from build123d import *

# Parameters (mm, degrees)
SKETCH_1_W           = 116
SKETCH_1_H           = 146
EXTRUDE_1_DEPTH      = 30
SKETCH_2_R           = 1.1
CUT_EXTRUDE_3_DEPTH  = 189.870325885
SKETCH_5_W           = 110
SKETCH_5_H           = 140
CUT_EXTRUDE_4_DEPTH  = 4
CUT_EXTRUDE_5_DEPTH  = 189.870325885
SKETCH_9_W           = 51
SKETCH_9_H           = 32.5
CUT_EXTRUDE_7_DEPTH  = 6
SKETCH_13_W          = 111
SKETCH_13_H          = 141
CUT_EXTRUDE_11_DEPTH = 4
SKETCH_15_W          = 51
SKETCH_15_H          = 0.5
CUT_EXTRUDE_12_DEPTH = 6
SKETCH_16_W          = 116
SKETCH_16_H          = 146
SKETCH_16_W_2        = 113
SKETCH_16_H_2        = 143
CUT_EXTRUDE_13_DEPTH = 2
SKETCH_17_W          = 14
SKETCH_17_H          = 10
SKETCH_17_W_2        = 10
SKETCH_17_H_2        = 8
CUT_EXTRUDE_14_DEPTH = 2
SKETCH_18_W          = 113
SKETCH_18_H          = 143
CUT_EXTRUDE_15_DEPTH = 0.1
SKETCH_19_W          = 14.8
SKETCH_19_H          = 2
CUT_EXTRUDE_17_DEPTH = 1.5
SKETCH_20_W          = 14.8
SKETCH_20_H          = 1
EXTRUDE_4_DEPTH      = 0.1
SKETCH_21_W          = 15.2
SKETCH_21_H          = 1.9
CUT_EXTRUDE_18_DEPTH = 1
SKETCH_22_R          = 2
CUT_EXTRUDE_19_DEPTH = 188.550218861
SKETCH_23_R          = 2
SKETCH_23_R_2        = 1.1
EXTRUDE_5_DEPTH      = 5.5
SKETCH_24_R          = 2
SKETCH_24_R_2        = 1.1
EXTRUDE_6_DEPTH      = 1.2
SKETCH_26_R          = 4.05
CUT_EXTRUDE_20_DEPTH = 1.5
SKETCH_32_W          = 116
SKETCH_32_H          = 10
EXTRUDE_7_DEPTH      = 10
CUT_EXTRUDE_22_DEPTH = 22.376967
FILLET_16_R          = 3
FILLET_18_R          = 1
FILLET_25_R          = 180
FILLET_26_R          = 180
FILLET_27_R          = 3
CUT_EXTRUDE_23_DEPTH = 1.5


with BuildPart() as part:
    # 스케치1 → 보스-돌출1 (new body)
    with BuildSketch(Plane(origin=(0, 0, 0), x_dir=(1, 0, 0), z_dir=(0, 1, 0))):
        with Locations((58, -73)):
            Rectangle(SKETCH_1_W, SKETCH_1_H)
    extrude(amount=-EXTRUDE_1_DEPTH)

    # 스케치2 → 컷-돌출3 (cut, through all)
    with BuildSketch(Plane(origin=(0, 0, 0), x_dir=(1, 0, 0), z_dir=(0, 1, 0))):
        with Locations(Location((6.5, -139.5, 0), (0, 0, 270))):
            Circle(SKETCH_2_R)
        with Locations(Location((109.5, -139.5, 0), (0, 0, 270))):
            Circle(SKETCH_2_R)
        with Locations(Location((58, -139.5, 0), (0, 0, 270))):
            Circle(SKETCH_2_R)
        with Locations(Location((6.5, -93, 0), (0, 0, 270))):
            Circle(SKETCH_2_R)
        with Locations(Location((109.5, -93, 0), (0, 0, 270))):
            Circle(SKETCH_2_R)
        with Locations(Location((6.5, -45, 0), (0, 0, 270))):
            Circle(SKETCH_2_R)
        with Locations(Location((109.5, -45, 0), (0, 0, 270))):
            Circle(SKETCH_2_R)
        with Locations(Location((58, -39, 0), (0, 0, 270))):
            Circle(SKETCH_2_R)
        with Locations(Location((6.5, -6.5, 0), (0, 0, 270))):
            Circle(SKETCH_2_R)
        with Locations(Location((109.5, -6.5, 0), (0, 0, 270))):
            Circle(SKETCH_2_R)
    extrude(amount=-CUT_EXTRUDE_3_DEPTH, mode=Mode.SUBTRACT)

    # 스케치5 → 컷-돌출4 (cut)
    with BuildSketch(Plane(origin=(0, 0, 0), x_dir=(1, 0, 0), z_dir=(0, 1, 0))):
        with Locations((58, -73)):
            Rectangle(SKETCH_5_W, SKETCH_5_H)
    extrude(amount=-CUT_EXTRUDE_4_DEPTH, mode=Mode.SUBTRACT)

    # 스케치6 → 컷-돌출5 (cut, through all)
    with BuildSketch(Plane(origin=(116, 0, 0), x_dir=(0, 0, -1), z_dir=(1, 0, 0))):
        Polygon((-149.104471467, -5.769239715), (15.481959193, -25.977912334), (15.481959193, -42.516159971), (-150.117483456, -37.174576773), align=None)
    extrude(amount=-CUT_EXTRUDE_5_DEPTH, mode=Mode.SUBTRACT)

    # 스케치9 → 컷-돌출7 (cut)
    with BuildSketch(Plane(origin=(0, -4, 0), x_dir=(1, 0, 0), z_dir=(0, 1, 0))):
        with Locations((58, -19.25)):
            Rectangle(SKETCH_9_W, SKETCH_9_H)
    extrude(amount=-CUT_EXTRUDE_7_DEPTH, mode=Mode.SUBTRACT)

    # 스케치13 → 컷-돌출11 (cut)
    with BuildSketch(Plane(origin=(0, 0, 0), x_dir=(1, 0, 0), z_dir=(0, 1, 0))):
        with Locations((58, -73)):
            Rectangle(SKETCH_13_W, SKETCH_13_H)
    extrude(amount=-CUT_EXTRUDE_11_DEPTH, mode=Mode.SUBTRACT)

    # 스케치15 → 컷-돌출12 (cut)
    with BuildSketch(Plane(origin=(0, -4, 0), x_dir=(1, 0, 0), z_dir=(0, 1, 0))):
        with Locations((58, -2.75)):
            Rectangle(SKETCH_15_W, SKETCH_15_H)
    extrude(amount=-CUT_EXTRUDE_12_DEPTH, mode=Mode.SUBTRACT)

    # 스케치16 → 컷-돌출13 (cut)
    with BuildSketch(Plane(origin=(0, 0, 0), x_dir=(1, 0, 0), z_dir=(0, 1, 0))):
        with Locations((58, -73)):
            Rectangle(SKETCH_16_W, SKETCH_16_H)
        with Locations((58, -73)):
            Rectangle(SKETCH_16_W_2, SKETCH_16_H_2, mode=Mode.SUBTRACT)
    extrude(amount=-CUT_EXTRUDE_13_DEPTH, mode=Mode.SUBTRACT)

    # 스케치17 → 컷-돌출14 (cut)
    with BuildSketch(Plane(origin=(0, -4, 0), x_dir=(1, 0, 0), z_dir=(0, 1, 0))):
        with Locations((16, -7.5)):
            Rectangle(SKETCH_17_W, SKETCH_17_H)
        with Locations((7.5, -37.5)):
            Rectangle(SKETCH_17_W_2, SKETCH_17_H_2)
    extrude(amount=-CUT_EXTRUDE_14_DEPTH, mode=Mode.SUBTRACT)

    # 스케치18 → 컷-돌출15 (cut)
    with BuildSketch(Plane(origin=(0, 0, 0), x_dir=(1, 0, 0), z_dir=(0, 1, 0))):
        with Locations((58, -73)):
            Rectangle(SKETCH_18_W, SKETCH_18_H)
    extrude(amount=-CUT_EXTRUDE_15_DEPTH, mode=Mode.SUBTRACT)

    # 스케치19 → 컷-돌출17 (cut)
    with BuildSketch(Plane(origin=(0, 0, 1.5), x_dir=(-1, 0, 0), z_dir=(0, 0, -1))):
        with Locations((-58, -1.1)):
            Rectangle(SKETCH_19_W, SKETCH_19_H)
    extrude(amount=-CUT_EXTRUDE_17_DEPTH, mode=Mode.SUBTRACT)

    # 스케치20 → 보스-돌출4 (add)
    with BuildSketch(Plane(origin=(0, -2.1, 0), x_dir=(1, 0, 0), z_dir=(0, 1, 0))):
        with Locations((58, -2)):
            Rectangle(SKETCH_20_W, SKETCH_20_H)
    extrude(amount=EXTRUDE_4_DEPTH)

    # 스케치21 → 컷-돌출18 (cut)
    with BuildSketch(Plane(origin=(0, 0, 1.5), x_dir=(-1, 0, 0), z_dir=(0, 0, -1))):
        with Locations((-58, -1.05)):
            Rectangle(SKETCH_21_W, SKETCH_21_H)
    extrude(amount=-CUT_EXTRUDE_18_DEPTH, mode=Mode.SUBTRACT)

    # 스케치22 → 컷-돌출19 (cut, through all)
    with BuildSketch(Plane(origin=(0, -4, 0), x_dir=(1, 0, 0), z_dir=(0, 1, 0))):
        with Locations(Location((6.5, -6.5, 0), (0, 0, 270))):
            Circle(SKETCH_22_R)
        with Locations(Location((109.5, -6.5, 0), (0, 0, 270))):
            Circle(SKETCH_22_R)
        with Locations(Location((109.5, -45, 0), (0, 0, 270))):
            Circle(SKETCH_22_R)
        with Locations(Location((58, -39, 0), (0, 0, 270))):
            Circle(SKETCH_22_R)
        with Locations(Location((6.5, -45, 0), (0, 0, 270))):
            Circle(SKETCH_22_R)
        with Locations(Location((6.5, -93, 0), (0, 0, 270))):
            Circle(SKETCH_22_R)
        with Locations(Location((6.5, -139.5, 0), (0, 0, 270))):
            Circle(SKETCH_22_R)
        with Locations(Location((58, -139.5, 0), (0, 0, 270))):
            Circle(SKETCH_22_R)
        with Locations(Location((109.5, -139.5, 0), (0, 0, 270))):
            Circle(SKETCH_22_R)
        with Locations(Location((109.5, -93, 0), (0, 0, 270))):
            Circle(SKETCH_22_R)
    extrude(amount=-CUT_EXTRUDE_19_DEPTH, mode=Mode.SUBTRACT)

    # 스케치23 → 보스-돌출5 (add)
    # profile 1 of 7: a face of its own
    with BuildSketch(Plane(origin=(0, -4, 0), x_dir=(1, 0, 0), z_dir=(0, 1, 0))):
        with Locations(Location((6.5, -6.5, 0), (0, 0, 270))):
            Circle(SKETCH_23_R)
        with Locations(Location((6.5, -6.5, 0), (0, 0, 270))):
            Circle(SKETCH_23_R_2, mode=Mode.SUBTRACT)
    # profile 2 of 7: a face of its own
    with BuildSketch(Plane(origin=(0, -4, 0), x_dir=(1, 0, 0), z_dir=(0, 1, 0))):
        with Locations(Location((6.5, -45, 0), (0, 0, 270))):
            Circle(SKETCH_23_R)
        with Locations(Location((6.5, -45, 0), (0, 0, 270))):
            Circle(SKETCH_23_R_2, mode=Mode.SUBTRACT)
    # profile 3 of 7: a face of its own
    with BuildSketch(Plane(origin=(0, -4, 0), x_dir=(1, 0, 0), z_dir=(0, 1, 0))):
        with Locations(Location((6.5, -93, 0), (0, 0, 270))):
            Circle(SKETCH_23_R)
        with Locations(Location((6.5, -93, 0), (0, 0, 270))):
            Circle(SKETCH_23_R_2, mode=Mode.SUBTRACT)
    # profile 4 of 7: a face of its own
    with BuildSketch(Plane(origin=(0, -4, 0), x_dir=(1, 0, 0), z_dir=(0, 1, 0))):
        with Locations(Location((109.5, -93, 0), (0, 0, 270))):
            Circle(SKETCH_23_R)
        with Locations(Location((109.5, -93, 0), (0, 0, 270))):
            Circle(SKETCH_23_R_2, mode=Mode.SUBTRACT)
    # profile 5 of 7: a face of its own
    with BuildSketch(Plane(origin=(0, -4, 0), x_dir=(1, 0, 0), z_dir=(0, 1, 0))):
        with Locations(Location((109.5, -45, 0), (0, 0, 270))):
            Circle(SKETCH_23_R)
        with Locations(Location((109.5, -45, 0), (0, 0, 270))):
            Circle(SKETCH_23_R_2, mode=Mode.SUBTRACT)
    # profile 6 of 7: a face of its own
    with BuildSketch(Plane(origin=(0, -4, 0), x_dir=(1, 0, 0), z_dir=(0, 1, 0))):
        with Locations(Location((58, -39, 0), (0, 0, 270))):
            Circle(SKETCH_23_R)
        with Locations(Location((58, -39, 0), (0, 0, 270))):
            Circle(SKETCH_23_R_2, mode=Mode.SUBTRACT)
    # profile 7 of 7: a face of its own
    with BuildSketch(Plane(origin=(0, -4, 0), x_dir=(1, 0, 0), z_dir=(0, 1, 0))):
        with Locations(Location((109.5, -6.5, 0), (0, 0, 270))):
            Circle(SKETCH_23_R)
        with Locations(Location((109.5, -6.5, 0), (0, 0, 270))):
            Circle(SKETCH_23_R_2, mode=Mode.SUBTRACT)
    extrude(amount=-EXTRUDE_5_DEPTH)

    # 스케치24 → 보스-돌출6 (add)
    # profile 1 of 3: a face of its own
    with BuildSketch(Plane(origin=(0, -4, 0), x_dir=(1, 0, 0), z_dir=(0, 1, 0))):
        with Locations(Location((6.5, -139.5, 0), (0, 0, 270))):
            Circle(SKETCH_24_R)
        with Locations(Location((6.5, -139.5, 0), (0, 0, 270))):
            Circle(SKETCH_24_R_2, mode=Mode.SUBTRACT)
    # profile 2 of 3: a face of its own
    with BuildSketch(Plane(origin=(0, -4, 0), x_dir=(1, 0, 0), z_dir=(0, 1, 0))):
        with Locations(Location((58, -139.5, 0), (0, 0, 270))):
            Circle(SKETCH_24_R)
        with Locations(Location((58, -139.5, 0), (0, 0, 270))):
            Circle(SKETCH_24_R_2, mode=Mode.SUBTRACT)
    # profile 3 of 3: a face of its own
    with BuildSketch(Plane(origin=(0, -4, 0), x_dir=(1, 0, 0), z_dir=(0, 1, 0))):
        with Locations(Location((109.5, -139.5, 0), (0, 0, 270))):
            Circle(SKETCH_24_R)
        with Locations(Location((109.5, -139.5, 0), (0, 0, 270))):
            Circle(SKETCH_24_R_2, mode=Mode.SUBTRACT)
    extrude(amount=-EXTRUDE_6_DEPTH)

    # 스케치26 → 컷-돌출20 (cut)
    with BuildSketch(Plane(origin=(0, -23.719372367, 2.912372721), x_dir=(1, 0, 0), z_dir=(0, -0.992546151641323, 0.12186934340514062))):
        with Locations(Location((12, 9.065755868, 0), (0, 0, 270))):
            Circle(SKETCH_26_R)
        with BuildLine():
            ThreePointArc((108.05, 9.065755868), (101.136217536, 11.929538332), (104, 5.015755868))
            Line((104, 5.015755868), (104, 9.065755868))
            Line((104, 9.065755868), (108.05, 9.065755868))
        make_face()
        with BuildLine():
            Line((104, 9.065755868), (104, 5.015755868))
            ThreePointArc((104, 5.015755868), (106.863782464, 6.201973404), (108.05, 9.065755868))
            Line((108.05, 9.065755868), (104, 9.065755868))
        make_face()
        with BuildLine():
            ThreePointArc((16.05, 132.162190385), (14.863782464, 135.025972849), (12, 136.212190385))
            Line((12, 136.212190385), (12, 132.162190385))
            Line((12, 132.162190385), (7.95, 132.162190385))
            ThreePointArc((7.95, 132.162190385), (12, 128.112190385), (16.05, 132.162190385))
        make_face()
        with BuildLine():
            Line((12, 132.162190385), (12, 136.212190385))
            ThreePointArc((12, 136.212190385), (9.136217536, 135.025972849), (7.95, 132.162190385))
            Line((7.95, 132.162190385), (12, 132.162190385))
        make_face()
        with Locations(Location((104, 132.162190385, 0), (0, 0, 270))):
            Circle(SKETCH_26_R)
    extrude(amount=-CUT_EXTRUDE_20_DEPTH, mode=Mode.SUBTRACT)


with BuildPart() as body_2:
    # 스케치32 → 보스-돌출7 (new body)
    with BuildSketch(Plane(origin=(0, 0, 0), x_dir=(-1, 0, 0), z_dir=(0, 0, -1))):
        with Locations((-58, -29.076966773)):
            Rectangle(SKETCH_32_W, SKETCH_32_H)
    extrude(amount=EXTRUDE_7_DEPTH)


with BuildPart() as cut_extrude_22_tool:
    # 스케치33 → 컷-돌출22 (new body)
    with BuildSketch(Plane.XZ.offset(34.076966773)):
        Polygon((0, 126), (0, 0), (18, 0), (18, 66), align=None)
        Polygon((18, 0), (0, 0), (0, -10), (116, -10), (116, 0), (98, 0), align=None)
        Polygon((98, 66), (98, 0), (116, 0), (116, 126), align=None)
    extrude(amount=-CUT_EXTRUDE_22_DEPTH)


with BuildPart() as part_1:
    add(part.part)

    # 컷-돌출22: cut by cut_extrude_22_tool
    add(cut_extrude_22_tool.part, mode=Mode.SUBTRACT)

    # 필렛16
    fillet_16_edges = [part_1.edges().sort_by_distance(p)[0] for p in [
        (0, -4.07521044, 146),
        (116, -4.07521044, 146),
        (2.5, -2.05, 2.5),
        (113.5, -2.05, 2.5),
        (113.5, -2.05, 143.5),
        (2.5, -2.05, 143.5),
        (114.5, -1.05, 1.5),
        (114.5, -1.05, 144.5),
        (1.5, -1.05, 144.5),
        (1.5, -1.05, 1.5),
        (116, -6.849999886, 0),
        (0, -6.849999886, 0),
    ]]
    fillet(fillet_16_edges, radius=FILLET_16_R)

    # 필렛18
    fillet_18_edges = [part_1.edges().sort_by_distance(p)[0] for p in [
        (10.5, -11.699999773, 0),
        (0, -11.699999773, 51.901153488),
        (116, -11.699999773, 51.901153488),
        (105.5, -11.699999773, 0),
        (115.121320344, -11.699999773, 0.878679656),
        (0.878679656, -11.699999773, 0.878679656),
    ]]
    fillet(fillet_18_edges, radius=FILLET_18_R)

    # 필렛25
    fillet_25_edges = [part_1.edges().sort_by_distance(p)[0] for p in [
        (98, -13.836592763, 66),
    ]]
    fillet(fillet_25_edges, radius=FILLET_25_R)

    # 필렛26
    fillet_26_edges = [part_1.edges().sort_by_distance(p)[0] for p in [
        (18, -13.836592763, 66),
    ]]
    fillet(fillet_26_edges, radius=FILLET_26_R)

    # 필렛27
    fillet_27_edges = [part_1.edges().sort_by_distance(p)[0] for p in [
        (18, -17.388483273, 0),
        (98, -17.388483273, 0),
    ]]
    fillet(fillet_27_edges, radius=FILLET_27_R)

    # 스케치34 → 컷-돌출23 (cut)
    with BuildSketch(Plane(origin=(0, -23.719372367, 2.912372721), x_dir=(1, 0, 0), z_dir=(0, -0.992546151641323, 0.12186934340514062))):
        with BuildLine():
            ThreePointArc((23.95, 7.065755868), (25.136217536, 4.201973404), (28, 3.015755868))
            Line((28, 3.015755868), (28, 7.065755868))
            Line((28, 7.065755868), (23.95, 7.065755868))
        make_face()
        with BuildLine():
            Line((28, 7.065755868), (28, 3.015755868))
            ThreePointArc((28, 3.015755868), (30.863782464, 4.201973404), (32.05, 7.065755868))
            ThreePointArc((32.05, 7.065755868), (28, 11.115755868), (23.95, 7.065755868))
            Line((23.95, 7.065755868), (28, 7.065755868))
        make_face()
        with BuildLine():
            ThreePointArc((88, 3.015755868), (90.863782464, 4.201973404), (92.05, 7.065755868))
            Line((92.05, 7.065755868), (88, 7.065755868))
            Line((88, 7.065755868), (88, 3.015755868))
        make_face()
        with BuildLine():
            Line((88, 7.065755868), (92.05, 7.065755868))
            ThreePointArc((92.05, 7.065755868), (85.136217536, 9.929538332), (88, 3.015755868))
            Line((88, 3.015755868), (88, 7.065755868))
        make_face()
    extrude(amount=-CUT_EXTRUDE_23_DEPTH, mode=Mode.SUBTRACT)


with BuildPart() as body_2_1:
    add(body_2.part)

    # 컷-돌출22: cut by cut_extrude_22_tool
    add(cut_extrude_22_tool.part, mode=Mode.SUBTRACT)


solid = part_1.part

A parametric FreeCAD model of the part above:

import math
import FreeCAD as App
import Part
import Sketcher
from FreeCAD import Vector
Q = App.Units.Quantity


def edges_at(feature, points):
    """Names of the edges that pass closest to the given points."""
    edges = feature.Shape.Edges
    near = lambda p: min(range(len(edges)), key=lambda i: edges[i].distToShape(Part.Vertex(*p))[0])
    return sorted({f"Edge{near(p) + 1}" for p in points})


def add_polygon(sketch, points):
    """Adds a closed chain of lines whose ends are joined by coincident constraints."""
    first, n = sketch.GeometryCount, len(points)
    for a, b in zip(points, points[1:] + points[:1]):
        sketch.addGeometry(Part.LineSegment(App.Vector(*a, 0), App.Vector(*b, 0)), False)
    for i in range(n):
        sketch.addConstraint(Sketcher.Constraint("Coincident", first + i, 2, first + (i + 1) % n, 1))

doc = App.newDocument("Part")
body = doc.addObject("PartDesign::Body", "Body")

# Sketch on XZ plane
sketch1 = body.newObject("Sketcher::SketchObject", "Sketch")
sketch1.AttachmentSupport = (doc.getObject("XZ_Plane"), [""])
sketch1.MapMode = "FlatFace"
add_polygon(sketch1, [(0, 0), (0, 146), (116, 146), (116, 0)])  # lines 0-3
sketch1.addConstraint(Sketcher.Constraint("Vertical", 0))
sketch1.addConstraint(Sketcher.Constraint("Horizontal", 1))
sketch1.addConstraint(Sketcher.Constraint("Vertical", 2))
sketch1.addConstraint(Sketcher.Constraint("Horizontal", 3))
sketch1.addConstraint(Sketcher.Constraint("Coincident", 3, 2, -1, 1))
sketch1.addConstraint(Sketcher.Constraint("DistanceX", 1, 1, 1, 2, 116.0))
sketch1.addConstraint(Sketcher.Constraint("DistanceY", 0, 1, 0, 2, 146.0))
pad1 = body.newObject("PartDesign::Pad", "Pad")
pad1.Profile = sketch1
pad1.Length = 30

# Sketch on XZ plane
sketch2 = body.newObject("Sketcher::SketchObject", "Sketch001")
sketch2.AttachmentSupport = (doc.getObject("XZ_Plane"), [""])
sketch2.MapMode = "FlatFace"
sketch2.addGeometry(Part.Circle(Vector(6.5, 139.5, 0), Vector(0, 0, 1), 1.1), False)
sketch2.addGeometry(Part.Circle(Vector(109.5, 139.5, 0), Vector(0, 0, 1), 1.1), False)
sketch2.addGeometry(Part.Circle(Vector(58, 139.5, 0), Vector(0, 0, 1), 1.1), False)
sketch2.addGeometry(Part.Circle(Vector(6.5, 93, 0), Vector(0, 0, 1), 1.1), False)
sketch2.addGeometry(Part.Circle(Vector(109.5, 93, 0), Vector(0, 0, 1), 1.1), False)
sketch2.addGeometry(Part.Circle(Vector(6.5, 45, 0), Vector(0, 0, 1), 1.1), False)
sketch2.addGeometry(Part.Circle(Vector(109.5, 45, 0), Vector(0, 0, 1), 1.1), False)
sketch2.addGeometry(Part.Circle(Vector(58, 39, 0), Vector(0, 0, 1), 1.1), False)
sketch2.addGeometry(Part.Circle(Vector(6.5, 6.5, 0), Vector(0, 0, 1), 1.1), False)
sketch2.addGeometry(Part.Circle(Vector(109.5, 6.5, 0), Vector(0, 0, 1), 1.1), False)
sketch2.addConstraint(Sketcher.Constraint("Equal", 0, 1))
sketch2.addConstraint(Sketcher.Constraint("Equal", 1, 2))
sketch2.addConstraint(Sketcher.Constraint("Equal", 2, 3))
sketch2.addConstraint(Sketcher.Constraint("Equal", 3, 4))
sketch2.addConstraint(Sketcher.Constraint("Equal", 4, 5))
sketch2.addConstraint(Sketcher.Constraint("Equal", 5, 6))
sketch2.addConstraint(Sketcher.Constraint("Equal", 6, 7))
sketch2.addConstraint(Sketcher.Constraint("Equal", 7, 8))
sketch2.addConstraint(Sketcher.Constraint("Equal", 8, 9))
sketch2.addConstraint(Sketcher.Constraint("Horizontal", 0, 3, 1, 3))
sketch2.addConstraint(Sketcher.Constraint("Horizontal", 1, 3, 2, 3))
sketch2.addConstraint(Sketcher.Constraint("Horizontal", 3, 3, 4, 3))
sketch2.addConstraint(Sketcher.Constraint("Horizontal", 5, 3, 6, 3))
sketch2.addConstraint(Sketcher.Constraint("Horizontal", 8, 3, 9, 3))
sketch2.addConstraint(Sketcher.Constraint("Vertical", 0, 3, 3, 3))
sketch2.addConstraint(Sketcher.Constraint("Vertical", 1, 3, 4, 3))
sketch2.addConstraint(Sketcher.Constraint("Vertical", 3, 3, 5, 3))
sketch2.addConstraint(Sketcher.Constraint("Vertical", 4, 3, 6, 3))
sketch2.addConstraint(Sketcher.Constraint("Vertical", 2, 3, 7, 3))
sketch2.addConstraint(Sketcher.Constraint("Vertical", 5, 3, 8, 3))
sketch2.addConstraint(Sketcher.Constraint("Vertical", 6, 3, 9, 3))
sketch2.addConstraint(Sketcher.Constraint("Diameter", 0, 2.2))
sketch2.addConstraint(Sketcher.Constraint("DistanceX", -1, 1, 2, 3, 58.0))
sketch2.addConstraint(Sketcher.Constraint("DistanceY", -1, 1, 3, 3, 93.0))
sketch2.addConstraint(Sketcher.Constraint("DistanceY", -1, 1, 5, 3, 45.0))
sketch2.addConstraint(Sketcher.Constraint("DistanceY", -1, 1, 7, 3, 39.0))
sketch2.addConstraint(Sketcher.Constraint("DistanceX", 0, 3, 1, 3, 103.0))
sketch2.addConstraint(Sketcher.Constraint("DistanceY", 8, 3, 0, 3, 133.0))
sketch2.addConstraint(Sketcher.Constraint("DistanceX", -1, 1, 0, 3, 6.5))
sketch2.addConstraint(Sketcher.Constraint("DistanceY", -1, 1, 0, 3, 139.5))
pocket1 = body.newObject("PartDesign::Pocket", "Pocket")
pocket1.Profile = sketch2
pocket1.Type = "ThroughAll"
pocket1.Reversed = True

# Sketch on XZ plane
sketch3 = body.newObject("Sketcher::SketchObject", "Sketch002")
sketch3.AttachmentSupport = (doc.getObject("XZ_Plane"), [""])
sketch3.MapMode = "FlatFace"
add_polygon(sketch3, [(3, 3), (3, 143), (113, 143), (113, 3)])  # lines 0-3
sketch3.addConstraint(Sketcher.Constraint("Vertical", 0))
sketch3.addConstraint(Sketcher.Constraint("Horizontal", 1))
sketch3.addConstraint(Sketcher.Constraint("Vertical", 2))
sketch3.addConstraint(Sketcher.Constraint("Horizontal", 3))
sketch3.addConstraint(Sketcher.Constraint("DistanceX", 1, 1, 1, 2, 110.0))
sketch3.addConstraint(Sketcher.Constraint("DistanceY", 0, 1, 0, 2, 140.0))
sketch3.addConstraint(Sketcher.Constraint("DistanceX", -1, 1, 0, 2, 3.0))
sketch3.addConstraint(Sketcher.Constraint("DistanceY", -1, 1, 0, 2, 143.0))
pocket2 = body.newObject("PartDesign::Pocket", "Pocket001")
pocket2.Profile = sketch3
pocket2.Length = 4
pocket2.Reversed = True

# Sketch on YZ plane
sketch4 = body.newObject("Sketcher::SketchObject", "Sketch003")
sketch4.AttachmentSupport = (doc.getObject("YZ_Plane"), [""])
sketch4.MapMode = "FlatFace"
sketch4.AttachmentOffset = App.Placement(Vector(0, 0, 116), App.Rotation())
add_polygon(sketch4, [(-25.977912, -15.481959), (-5.76924, 149.104471), (-37.174577, 150.117483), (-42.51616, -15.481959)])  # lines 0-3
sketch4.addConstraint(Sketcher.Constraint("Horizontal", 3))
sketch4.addConstraint(Sketcher.Constraint("Perpendicular", 1, 2))
sketch4.addConstraint(Sketcher.Constraint("Angle", 0, Q("83 deg")))
sketch4.addConstraint(Sketcher.Constraint("Distance", 1, 31.421671))
sketch4.addConstraint(Sketcher.Constraint("Distance", 2, 165.685569))
sketch4.addConstraint(Sketcher.Constraint("DistanceX", 3, 1, 3, 2, 16.538248))
sketch4.addConstraint(Sketcher.Constraint("DistanceX", 0, 2, -1, 1, 5.76924))
sketch4.addConstraint(Sketcher.Constraint("DistanceY", -1, 1, 0, 2, 149.104471))
pocket3 = body.newObject("PartDesign::Pocket", "Pocket002")
pocket3.Profile = sketch4
pocket3.Type = "ThroughAll"

# Sketch on XZ plane
sketch5 = body.newObject("Sketcher::SketchObject", "Sketch004")
sketch5.AttachmentSupport = (doc.getObject("XZ_Plane"), [""])
sketch5.MapMode = "FlatFace"
sketch5.AttachmentOffset = App.Placement(Vector(0, 0, 4), App.Rotation())
add_polygon(sketch5, [(32.5, 3), (32.5, 35.5), (83.5, 35.5), (83.5, 3)])  # lines 0-3
sketch5.addConstraint(Sketcher.Constraint("Vertical", 0))
sketch5.addConstraint(Sketcher.Constraint("Horizontal", 1))
sketch5.addConstraint(Sketcher.Constraint("Vertical", 2))
sketch5.addConstraint(Sketcher.Constraint("Horizontal", 3))
sketch5.addConstraint(Sketcher.Constraint("DistanceX", 1, 1, 1, 2, 51.0))
sketch5.addConstraint(Sketcher.Constraint("DistanceY", 0, 1, 0, 2, 32.5))
sketch5.addConstraint(Sketcher.Constraint("DistanceY", -1, 1, 2, 2, 3.0))
sketch5.addConstraint(Sketcher.Constraint("DistanceX", -1, 1, 0, 2, 32.5))
pocket4 = body.newObject("PartDesign::Pocket", "Pocket003")
pocket4.Profile = sketch5
pocket4.Length = 6
pocket4.Reversed = True

# Sketch on XZ plane
sketch6 = body.newObject("Sketcher::SketchObject", "Sketch005")
sketch6.AttachmentSupport = (doc.getObject("XZ_Plane"), [""])
sketch6.MapMode = "FlatFace"
add_polygon(sketch6, [(2.5, 2.5), (2.5, 143.5), (113.5, 143.5), (113.5, 2.5)])  # lines 0-3
sketch6.addConstraint(Sketcher.Constraint("Vertical", 0))
sketch6.addConstraint(Sketcher.Constraint("Horizontal", 1))
sketch6.addConstraint(Sketcher.Constraint("Vertical", 2))
sketch6.addConstraint(Sketcher.Constraint("Horizontal", 3))
sketch6.addConstraint(Sketcher.Constraint("DistanceX", 1, 1, 1, 2, 111.0))
sketch6.addConstraint(Sketcher.Constraint("DistanceY", 0, 1, 0, 2, 141.0))
sketch6.addConstraint(Sketcher.Constraint("DistanceX", -1, 1, 0, 2, 2.5))
sketch6.addConstraint(Sketcher.Constraint("DistanceY", -1, 1, 0, 2, 143.5))
pocket5 = body.newObject("PartDesign::Pocket", "Pocket004")
pocket5.Profile = sketch6
pocket5.Length = 4
pocket5.Reversed = True

# Sketch on XZ plane
sketch7 = body.newObject("Sketcher::SketchObject", "Sketch006")
sketch7.AttachmentSupport = (doc.getObject("XZ_Plane"), [""])
sketch7.MapMode = "FlatFace"
sketch7.AttachmentOffset = App.Placement(Vector(0, 0, 4), App.Rotation())
add_polygon(sketch7, [(32.5, 2.5), (32.5, 3), (83.5, 3), (83.5, 2.5)])  # lines 0-3
sketch7.addConstraint(Sketcher.Constraint("Vertical", 0))
sketch7.addConstraint(Sketcher.Constraint("Horizontal", 1))
sketch7.addConstraint(Sketcher.Constraint("Vertical", 2))
sketch7.addConstraint(Sketcher.Constraint("Horizontal", 3))
sketch7.addConstraint(Sketcher.Constraint("DistanceX", 1, 1, 1, 2, 51.0))
sketch7.addConstraint(Sketcher.Constraint("DistanceY", 0, 1, 0, 2, 0.5))
sketch7.addConstraint(Sketcher.Constraint("DistanceY", -1, 1, 0, 2, 3.0))
sketch7.addConstraint(Sketcher.Constraint("DistanceX", -1, 1, 0, 2, 32.5))
pocket6 = body.newObject("PartDesign::Pocket", "Pocket005")
pocket6.Profile = sketch7
pocket6.Length = 6
pocket6.Reversed = True

# Sketch on XZ plane
sketch8 = body.newObject("Sketcher::SketchObject", "Sketch007")
sketch8.AttachmentSupport = (doc.getObject("XZ_Plane"), [""])
sketch8.MapMode = "FlatFace"
add_polygon(sketch8, [(0, 0), (0, 146), (116, 146), (116, 0)])  # lines 0-3
add_polygon(sketch8, [(114.5, 144.5), (1.5, 144.5), (1.5, 1.5), (114.5, 1.5)])  # lines 4-7
sketch8.addConstraint(Sketcher.Constraint("Vertical", 0))
sketch8.addConstraint(Sketcher.Constraint("Horizontal", 1))
sketch8.addConstraint(Sketcher.Constraint("Vertical", 2))
sketch8.addConstraint(Sketcher.Constraint("Horizontal", 3))
sketch8.addConstraint(Sketcher.Constraint("Horizontal", 4))
sketch8.addConstraint(Sketcher.Constraint("Vertical", 5))
sketch8.addConstraint(Sketcher.Constraint("Horizontal", 6))
sketch8.addConstraint(Sketcher.Constraint("Vertical", 7))
sketch8.addConstraint(Sketcher.Constraint("Coincident", 3, 2, -1, 1))
sketch8.addConstraint(Sketcher.Constraint("DistanceX", 1, 1, 1, 2, 116.0))
sketch8.addConstraint(Sketcher.Constraint("DistanceX", 4, 2, 4, 1, 113.0))
sketch8.addConstraint(Sketcher.Constraint("DistanceY", 0, 1, 0, 2, 146.0))
sketch8.addConstraint(Sketcher.Constraint("DistanceY", 5, 2, 5, 1, 143.0))
sketch8.addConstraint(Sketcher.Constraint("DistanceX", -1, 1, 4, 2, 1.5))
sketch8.addConstraint(Sketcher.Constraint("DistanceY", -1, 1, 4, 2, 144.5))
pocket7 = body.newObject("PartDesign::Pocket", "Pocket006")
pocket7.Profile = sketch8
pocket7.Length = 2
pocket7.Reversed = True

# Sketch on XZ plane
sketch9 = body.newObject("Sketcher::SketchObject", "Sketch008")
sketch9.AttachmentSupport = (doc.getObject("XZ_Plane"), [""])
sketch9.MapMode = "FlatFace"
sketch9.AttachmentOffset = App.Placement(Vector(0, 0, 4), App.Rotation())
add_polygon(sketch9, [(9, 2.5), (9, 12.5), (23, 12.5), (23, 2.5)])  # lines 0-3
add_polygon(sketch9, [(2.5, 33.5), (2.5, 41.5), (12.5, 41.5), (12.5, 33.5)])  # lines 4-7
sketch9.addConstraint(Sketcher.Constraint("Vertical", 0))
sketch9.addConstraint(Sketcher.Constraint("Horizontal", 1))
sketch9.addConstraint(Sketcher.Constraint("Vertical", 2))
sketch9.addConstraint(Sketcher.Constraint("Horizontal", 3))
sketch9.addConstraint(Sketcher.Constraint("Vertical", 4))
sketch9.addConstraint(Sketcher.Constraint("Horizontal", 5))
sketch9.addConstraint(Sketcher.Constraint("Vertical", 6))
sketch9.addConstraint(Sketcher.Constraint("Horizontal", 7))
sketch9.addConstraint(Sketcher.Constraint("Equal", 7, 0))
sketch9.addConstraint(Sketcher.Constraint("DistanceX", 1, 1, 1, 2, 14.0))
sketch9.addConstraint(Sketcher.Constraint("DistanceX", 5, 1, 5, 2, 10.0))
sketch9.addConstraint(Sketcher.Constraint("DistanceY", 4, 1, 4, 2, 8.0))
sketch9.addConstraint(Sketcher.Constraint("DistanceX", -1, 1, 0, 2, 9.0))
sketch9.addConstraint(Sketcher.Constraint("DistanceY", 0, 2, 4, 2, 29.0))
sketch9.addConstraint(Sketcher.Constraint("DistanceY", -1, 1, 0, 2, 12.5))
sketch9.addConstraint(Sketcher.Constraint("DistanceX", -1, 1, 4, 2, 2.5))
pocket8 = body.newObject("PartDesign::Pocket", "Pocket007")
pocket8.Profile = sketch9
pocket8.Length = 2
pocket8.Reversed = True

# Sketch on XZ plane
sketch10 = body.newObject("Sketcher::SketchObject", "Sketch009")
sketch10.AttachmentSupport = (doc.getObject("XZ_Plane"), [""])
sketch10.MapMode = "FlatFace"
add_polygon(sketch10, [(1.5, 1.5), (1.5, 144.5), (114.5, 144.5), (114.5, 1.5)])  # lines 0-3
sketch10.addConstraint(Sketcher.Constraint("Vertical", 0))
sketch10.addConstraint(Sketcher.Constraint("Horizontal", 1))
sketch10.addConstraint(Sketcher.Constraint("Vertical", 2))
sketch10.addConstraint(Sketcher.Constraint("Horizontal", 3))
sketch10.addConstraint(Sketcher.Constraint("DistanceX", 1, 1, 1, 2, 113.0))
sketch10.addConstraint(Sketcher.Constraint("DistanceY", 0, 1, 0, 2, 143.0))
sketch10.addConstraint(Sketcher.Constraint("DistanceX", -1, 1, 0, 2, 1.5))
sketch10.addConstraint(Sketcher.Constraint("DistanceY", -1, 1, 0, 2, 144.5))
pocket9 = body.newObject("PartDesign::Pocket", "Pocket008")
pocket9.Profile = sketch10
pocket9.Length = 0.1
pocket9.Reversed = True

# Sketch on XY plane
sketch11 = body.newObject("Sketcher::SketchObject", "Sketch010")
sketch11.AttachmentSupport = (doc.getObject("XY_Plane"), [""])
sketch11.MapMode = "FlatFace"
sketch11.AttachmentOffset = App.Placement(Vector(0, 0, 1.5), App.Rotation())
add_polygon(sketch11, [(65.4, -0.1), (65.4, -2.1), (50.6, -2.1), (50.6, -0.1)])  # lines 0-3
sketch11.addConstraint(Sketcher.Constraint("Vertical", 0))
sketch11.addConstraint(Sketcher.Constraint("Horizontal", 1))
sketch11.addConstraint(Sketcher.Constraint("Vertical", 2))
sketch11.addConstraint(Sketcher.Constraint("Horizontal", 3))
sketch11.addConstraint(Sketcher.Constraint("DistanceY", 0, 2, 0, 1, 2.0))
sketch11.addConstraint(Sketcher.Constraint("DistanceX", 1, 2, 1, 1, 14.8))
sketch11.addConstraint(Sketcher.Constraint("DistanceX", -1, 1, 0, 2, 65.4))
sketch11.addConstraint(Sketcher.Constraint("DistanceY", 0, 2, -1, 1, 2.1))
pocket10 = body.newObject("PartDesign::Pocket", "Pocket009")
pocket10.Profile = sketch11
pocket10.Length = 1.5
pocket10.Reversed = True

# Sketch on XZ plane
sketch12 = body.newObject("Sketcher::SketchObject", "Sketch011")
sketch12.AttachmentSupport = (doc.getObject("XZ_Plane"), [""])
sketch12.MapMode = "FlatFace"
sketch12.AttachmentOffset = App.Placement(Vector(0, 0, 2.1), App.Rotation())
add_polygon(sketch12, [(50.6, 1.5), (50.6, 2.5), (65.4, 2.5), (65.4, 1.5)])  # lines 0-3
sketch12.addConstraint(Sketcher.Constraint("Vertical", 0))
sketch12.addConstraint(Sketcher.Constraint("Horizontal", 1))
sketch12.addConstraint(Sketcher.Constraint("Vertical", 2))
sketch12.addConstraint(Sketcher.Constraint("Horizontal", 3))
sketch12.addConstraint(Sketcher.Constraint("DistanceY", 0, 1, 0, 2, 1.0))
sketch12.addConstraint(Sketcher.Constraint("DistanceX", 1, 1, 1, 2, 14.8))
sketch12.addConstraint(Sketcher.Constraint("DistanceX", -1, 1, 0, 2, 50.6))
sketch12.addConstraint(Sketcher.Constraint("DistanceY", -1, 1, 0, 2, 2.5))
pad2 = body.newObject("PartDesign::Pad", "Pad001")
pad2.Profile = sketch12
pad2.Length = 0.1
pad2.Reversed = True

# Sketch on XY plane
sketch13 = body.newObject("Sketcher::SketchObject", "Sketch012")
sketch13.AttachmentSupport = (doc.getObject("XY_Plane"), [""])
sketch13.MapMode = "FlatFace"
sketch13.AttachmentOffset = App.Placement(Vector(0, 0, 1.5), App.Rotation())
add_polygon(sketch13, [(65.6, -0.1), (65.6, -2), (50.4, -2), (50.4, -0.1)])  # lines 0-3
sketch13.addConstraint(Sketcher.Constraint("Vertical", 0))
sketch13.addConstraint(Sketcher.Constraint("Horizontal", 1))
sketch13.addConstraint(Sketcher.Constraint("Vertical", 2))
sketch13.addConstraint(Sketcher.Constraint("Horizontal", 3))
sketch13.addConstraint(Sketcher.Constraint("DistanceX", 1, 2, 1, 1, 15.2))
sketch13.addConstraint(Sketcher.Constraint("DistanceY", 0, 2, 0, 1, 1.9))
sketch13.addConstraint(Sketcher.Constraint("DistanceY", 0, 2, -1, 1, 2.0))
sketch13.addConstraint(Sketcher.Constraint("DistanceX", -1, 1, 0, 2, 65.6))
pocket11 = body.newObject("PartDesign::Pocket", "Pocket010")
pocket11.Profile = sketch13
pocket11.Length = 1
pocket11.Reversed = True

# Sketch on XZ plane
sketch14 = body.newObject("Sketcher::SketchObject", "Sketch013")
sketch14.AttachmentSupport = (doc.getObject("XZ_Plane"), [""])
sketch14.MapMode = "FlatFace"
sketch14.AttachmentOffset = App.Placement(Vector(0, 0, 4), App.Rotation())
sketch14.addGeometry(Part.Circle(Vector(6.5, 6.5, 0), Vector(0, 0, 1), 2), False)
sketch14.addGeometry(Part.Circle(Vector(109.5, 6.5, 0), Vector(0, 0, 1), 2), False)
sketch14.addGeometry(Part.Circle(Vector(109.5, 45, 0), Vector(0, 0, 1), 2), False)
sketch14.addGeometry(Part.Circle(Vector(58, 39, 0), Vector(0, 0, 1), 2), False)
sketch14.addGeometry(Part.Circle(Vector(6.5, 45, 0), Vector(0, 0, 1), 2), False)
sketch14.addGeometry(Part.Circle(Vector(6.5, 93, 0), Vector(0, 0, 1), 2), False)
sketch14.addGeometry(Part.Circle(Vector(6.5, 139.5, 0), Vector(0, 0, 1), 2), False)
sketch14.addGeometry(Part.Circle(Vector(58, 139.5, 0), Vector(0, 0, 1), 2), False)
sketch14.addGeometry(Part.Circle(Vector(109.5, 139.5, 0), Vector(0, 0, 1), 2), False)
sketch14.addGeometry(Part.Circle(Vector(109.5, 93, 0), Vector(0, 0, 1), 2), False)
sketch14.addConstraint(Sketcher.Constraint("Equal", 0, 1))
sketch14.addConstraint(Sketcher.Constraint("Equal", 1, 2))
sketch14.addConstraint(Sketcher.Constraint("Equal", 2, 3))
sketch14.addConstraint(Sketcher.Constraint("Equal", 3, 4))
sketch14.addConstraint(Sketcher.Constraint("Equal", 4, 5))
sketch14.addConstraint(Sketcher.Constraint("Equal", 5, 6))
sketch14.addConstraint(Sketcher.Constraint("Equal", 6, 7))
sketch14.addConstraint(Sketcher.Constraint("Equal", 7, 8))
sketch14.addConstraint(Sketcher.Constraint("Equal", 8, 9))
sketch14.addConstraint(Sketcher.Constraint("Horizontal", 0, 3, 1, 3))
sketch14.addConstraint(Sketcher.Constraint("Horizontal", 2, 3, 4, 3))
sketch14.addConstraint(Sketcher.Constraint("Horizontal", 6, 3, 7, 3))
sketch14.addConstraint(Sketcher.Constraint("Horizontal", 7, 3, 8, 3))
sketch14.addConstraint(Sketcher.Constraint("Horizontal", 5, 3, 9, 3))
sketch14.addConstraint(Sketcher.Constraint("Vertical", 1, 3, 2, 3))
sketch14.addConstraint(Sketcher.Constraint("Vertical", 0, 3, 4, 3))
sketch14.addConstraint(Sketcher.Constraint("Vertical", 4, 3, 5, 3))
sketch14.addConstraint(Sketcher.Constraint("Vertical", 5, 3, 6, 3))
sketch14.addConstraint(Sketcher.Constraint("Vertical", 3, 3, 7, 3))
sketch14.addConstraint(Sketcher.Constraint("Vertical", 2, 3, 8, 3))
sketch14.addConstraint(Sketcher.Constraint("Vertical", 8, 3, 9, 3))
sketch14.addConstraint(Sketcher.Constraint("Diameter", 0, 4.0))
sketch14.addConstraint(Sketcher.Constraint("DistanceY", -1, 1, 2, 3, 45.0))
sketch14.addConstraint(Sketcher.Constraint("DistanceX", -1, 1, 3, 3, 58.0))
sketch14.addConstraint(Sketcher.Constraint("DistanceY", -1, 1, 3, 3, 39.0))
sketch14.addConstraint(Sketcher.Constraint("DistanceY", -1, 1, 5, 3, 93.0))
sketch14.addConstraint(Sketcher.Constraint("DistanceX", 0, 3, 1, 3, 103.0))
sketch14.addConstraint(Sketcher.Constraint("DistanceY", 0, 3, 6, 3, 133.0))
sketch14.addConstraint(Sketcher.Constraint("DistanceX", -1, 1, 0, 3, 6.5))
sketch14.addConstraint(Sketcher.Constraint("DistanceY", -1, 1, 0, 3, 6.5))
pocket12 = body.newObject("PartDesign::Pocket", "Pocket011")
pocket12.Profile = sketch14
pocket12.Type = "ThroughAll"
pocket12.Reversed = True

# Sketch on XZ plane
sketch15 = body.newObject("Sketcher::SketchObject", "Sketch014")
sketch15.AttachmentSupport = (doc.getObject("XZ_Plane"), [""])
sketch15.MapMode = "FlatFace"
sketch15.AttachmentOffset = App.Placement(Vector(0, 0, 4), App.Rotation())
sketch15.addGeometry(Part.Circle(Vector(6.5, 6.5, 0), Vector(0, 0, 1), 2), False)
sketch15.addGeometry(Part.Circle(Vector(6.5, 6.5, 0), Vector(0, 0, 1), 1.1), False)
sketch15.addGeometry(Part.Circle(Vector(6.5, 45, 0), Vector(0, 0, 1), 2), False)
sketch15.addGeometry(Part.Circle(Vector(6.5, 45, 0), Vector(0, 0, 1), 1.1), False)
sketch15.addGeometry(Part.Circle(Vector(6.5, 93, 0), Vector(0, 0, 1), 2), False)
sketch15.addGeometry(Part.Circle(Vector(6.5, 93, 0), Vector(0, 0, 1), 1.1), False)
sketch15.addGeometry(Part.Circle(Vector(109.5, 93, 0), Vector(0, 0, 1), 2), False)
sketch15.addGeometry(Part.Circle(Vector(109.5, 93, 0), Vector(0, 0, 1), 1.1), False)
sketch15.addGeometry(Part.Circle(Vector(109.5, 45, 0), Vector(0, 0, 1), 2), False)
sketch15.addGeometry(Part.Circle(Vector(109.5, 45, 0), Vector(0, 0, 1), 1.1), False)
sketch15.addGeometry(Part.Circle(Vector(58, 39, 0), Vector(0, 0, 1), 2), False)
sketch15.addGeometry(Part.Circle(Vector(58, 39, 0), Vector(0, 0, 1), 1.1), False)
sketch15.addGeometry(Part.Circle(Vector(109.5, 6.5, 0), Vector(0, 0, 1), 2), False)
sketch15.addGeometry(Part.Circle(Vector(109.5, 6.5, 0), Vector(0, 0, 1), 1.1), False)
sketch15.addConstraint(Sketcher.Constraint("Coincident", 1, 3, 0, 3))
sketch15.addConstraint(Sketcher.Constraint("Coincident", 3, 3, 2, 3))
sketch15.addConstraint(Sketcher.Constraint("Coincident", 5, 3, 4, 3))
sketch15.addConstraint(Sketcher.Constraint("Coincident", 7, 3, 6, 3))
sketch15.addConstraint(Sketcher.Constraint("Coincident", 9, 3, 8, 3))
sketch15.addConstraint(Sketcher.Constraint("Coincident", 11, 3, 10, 3))
sketch15.addConstraint(Sketcher.Constraint("Coincident", 13, 3, 12, 3))
sketch15.addConstraint(Sketcher.Constraint("Equal", 0, 2))
sketch15.addConstraint(Sketcher.Constraint("Equal", 1, 3))
sketch15.addConstraint(Sketcher.Constraint("Equal", 2, 4))
sketch15.addConstraint(Sketcher.Constraint("Equal", 3, 5))
sketch15.addConstraint(Sketcher.Constraint("Equal", 4, 6))
sketch15.addConstraint(Sketcher.Constraint("Equal", 5, 7))
sketch15.addConstraint(Sketcher.Constraint("Equal", 6, 8))
sketch15.addConstraint(Sketcher.Constraint("Equal", 7, 9))
sketch15.addConstraint(Sketcher.Constraint("Equal", 8, 10))
sketch15.addConstraint(Sketcher.Constraint("Equal", 9, 11))
sketch15.addConstraint(Sketcher.Constraint("Equal", 10, 12))
sketch15.addConstraint(Sketcher.Constraint("Equal", 11, 13))
sketch15.addConstraint(Sketcher.Constraint("Horizontal", 5, 3, 6, 3))
sketch15.addConstraint(Sketcher.Constraint("Horizontal", 3, 3, 8, 3))
sketch15.addConstraint(Sketcher.Constraint("Horizontal", 1, 3, 12, 3))
sketch15.addConstraint(Sketcher.Constraint("Vertical", 1, 3, 2, 3))
sketch15.addConstraint(Sketcher.Constraint("Vertical", 3, 3, 4, 3))
sketch15.addConstraint(Sketcher.Constraint("Vertical", 7, 3, 8, 3))
sketch15.addConstraint(Sketcher.Constraint("Vertical", 9, 3, 12, 3))
sketch15.addConstraint(Sketcher.Constraint("Diameter", 0, 4.0))
sketch15.addConstraint(Sketcher.Constraint("Diameter", 1, 2.2))
sketch15.addConstraint(Sketcher.Constraint("DistanceY", -1, 1, 2, 3, 45.0))
sketch15.addConstraint(Sketcher.Constraint("DistanceY", -1, 1, 4, 3, 93.0))
sketch15.addConstraint(Sketcher.Constraint("DistanceX", -1, 1, 10, 3, 58.0))
sketch15.addConstraint(Sketcher.Constraint("DistanceY", -1, 1, 10, 3, 39.0))
sketch15.addConstraint(Sketcher.Constraint("DistanceX", 4, 3, 6, 3, 103.0))
sketch15.addConstraint(Sketcher.Constraint("DistanceX", -1, 1, 0, 3, 6.5))
sketch15.addConstraint(Sketcher.Constraint("DistanceY", -1, 1, 0, 3, 6.5))
pad3 = body.newObject("PartDesign::Pad", "Pad002")
pad3.Profile = sketch15
pad3.Length = 5.5

# Sketch on XZ plane
sketch16 = body.newObject("Sketcher::SketchObject", "Sketch015")
sketch16.AttachmentSupport = (doc.getObject("XZ_Plane"), [""])
sketch16.MapMode = "FlatFace"
sketch16.AttachmentOffset = App.Placement(Vector(0, 0, 4), App.Rotation())
sketch16.addGeometry(Part.Circle(Vector(6.5, 139.5, 0), Vector(0, 0, 1), 2), False)
sketch16.addGeometry(Part.Circle(Vector(6.5, 139.5, 0), Vector(0, 0, 1), 1.1), False)
sketch16.addGeometry(Part.Circle(Vector(58, 139.5, 0), Vector(0, 0, 1), 2), False)
sketch16.addGeometry(Part.Circle(Vector(58, 139.5, 0), Vector(0, 0, 1), 1.1), False)
sketch16.addGeometry(Part.Circle(Vector(109.5, 139.5, 0), Vector(0, 0, 1), 2), False)
sketch16.addGeometry(Part.Circle(Vector(109.5, 139.5, 0), Vector(0, 0, 1), 1.1), False)
sketch16.addConstraint(Sketcher.Constraint("Coincident", 1, 3, 0, 3))
sketch16.addConstraint(Sketcher.Constraint("Coincident", 3, 3, 2, 3))
sketch16.addConstraint(Sketcher.Constraint("Coincident", 5, 3, 4, 3))
sketch16.addConstraint(Sketcher.Constraint("Equal", 0, 2))
sketch16.addConstraint(Sketcher.Constraint("Equal", 1, 3))
sketch16.addConstraint(Sketcher.Constraint("Equal", 2, 4))
sketch16.addConstraint(Sketcher.Constraint("Equal", 3, 5))
sketch16.addConstraint(Sketcher.Constraint("Horizontal", 1, 3, 2, 3))
sketch16.addConstraint(Sketcher.Constraint("Horizontal", 3, 3, 4, 3))
sketch16.addConstraint(Sketcher.Constraint("Diameter", 0, 4.0))
sketch16.addConstraint(Sketcher.Constraint("Diameter", 1, 2.2))
sketch16.addConstraint(Sketcher.Constraint("DistanceX", -1, 1, 2, 3, 58.0))
sketch16.addConstraint(Sketcher.Constraint("DistanceX", 0, 3, 4, 3, 103.0))
sketch16.addConstraint(Sketcher.Constraint("DistanceX", -1, 1, 0, 3, 6.5))
sketch16.addConstraint(Sketcher.Constraint("DistanceY", -1, 1, 0, 3, 139.5))
pad4 = body.newObject("PartDesign::Pad", "Pad003")
pad4.Profile = sketch16
pad4.Length = 1.2

# Sketch on an angled plane
sketch17 = body.newObject("Sketcher::SketchObject", "Sketch016")
sketch17.Placement = App.Placement(Vector(0, -23.719372, 2.912373), App.Rotation(Vector(1, 0, 0), Vector(0, 0.121869343, 0.992546152), Vector(0, -0.992546152, 0.121869343), "ZXY"))
sketch17.addGeometry(Part.Circle(Vector(12, 9.065756, 0), Vector(0, 0, 1), 4.05), False)
sketch17.addGeometry(Part.ArcOfCircle(Part.Circle(Vector(104, 9.065756, 0), Vector(0, 0, 1), 4.05), math.radians(0), math.radians(270)), False)
sketch17.addGeometry(Part.ArcOfCircle(Part.Circle(Vector(104, 9.065756, 0), Vector(0, 0, 1), 4.05), math.radians(-90), math.radians(0)), False)
sketch17.addGeometry(Part.ArcOfCircle(Part.Circle(Vector(12, 132.16219, 0), Vector(0, 0, 1), 4.05), math.radians(0), math.radians(90)), False)
sketch17.addGeometry(Part.ArcOfCircle(Part.Circle(Vector(12, 132.16219, 0), Vector(0, 0, 1), 4.05), math.radians(90), math.radians(180)), False)
sketch17.addGeometry(Part.ArcOfCircle(Part.Circle(Vector(12, 132.16219, 0), Vector(0, 0, 1), 4.05), math.radians(180), math.radians(360)), False)
sketch17.addGeometry(Part.Circle(Vector(104, 132.16219, 0), Vector(0, 0, 1), 4.05), False)
sketch17.addConstraint(Sketcher.Constraint("Tangent", 1, 1, 2, 2))
sketch17.addConstraint(Sketcher.Constraint("Coincident", 2, 1, 1, 2))
sketch17.addConstraint(Sketcher.Constraint("Tangent", 3, 2, 4, 1))
sketch17.addConstraint(Sketcher.Constraint("Tangent", 4, 2, 5, 1))
sketch17.addConstraint(Sketcher.Constraint("Tangent", 5, 2, 3, 1))
sketch17.addConstraint(Sketcher.Constraint("Equal", 0, 1))
sketch17.addConstraint(Sketcher.Constraint("Equal", 2, 3))
sketch17.addConstraint(Sketcher.Constraint("Equal", 5, 6))
sketch17.addConstraint(Sketcher.Constraint("Horizontal", 0, 3, 1, 3))
sketch17.addConstraint(Sketcher.Constraint("Horizontal", 5, 3, 6, 3))
sketch17.addConstraint(Sketcher.Constraint("Horizontal", 2, 3, 1, 1))
sketch17.addConstraint(Sketcher.Constraint("Horizontal", 6, 3, 4, 2))
sketch17.addConstraint(Sketcher.Constraint("Horizontal", 4, 2, 5, 2))
sketch17.addConstraint(Sketcher.Constraint("Vertical", 0, 3, 3, 3))
sketch17.addConstraint(Sketcher.Constraint("Vertical", 2, 3, 6, 3))
sketch17.addConstraint(Sketcher.Constraint("Vertical", 6, 3, 2, 1))
sketch17.addConstraint(Sketcher.Constraint("Vertical", 5, 3, 3, 2))
sketch17.addConstraint(Sketcher.Constraint("Diameter", 0, 8.1))
sketch17.addConstraint(Sketcher.Constraint("DistanceX", -1, 1, 0, 3, 12.0))
sketch17.addConstraint(Sketcher.Constraint("DistanceX", -1, 1, 1, 3, 104.0))
sketch17.addConstraint(Sketcher.Constraint("DistanceY", -1, 1, 3, 3, 132.16219))
sketch17.addConstraint(Sketcher.Constraint("DistanceY", -1, 1, 0, 3, 9.065756))
pocket13 = body.newObject("PartDesign::Pocket", "Pocket012")
pocket13.Profile = sketch17
pocket13.Length = 1.5
body2 = doc.addObject("PartDesign::Body", "Body001")

# Sketch on XY plane
sketch18 = body2.newObject("Sketcher::SketchObject", "Sketch017")
sketch18.AttachmentSupport = (doc.getObject("XY_Plane001"), [""])
sketch18.MapMode = "FlatFace"
add_polygon(sketch18, [(116, -24.076967), (116, -34.076967), (0, -34.076967), (0, -24.076967)])  # lines 0-3
sketch18.addConstraint(Sketcher.Constraint("Vertical", 0))
sketch18.addConstraint(Sketcher.Constraint("Horizontal", 1))
sketch18.addConstraint(Sketcher.Constraint("Vertical", 2))
sketch18.addConstraint(Sketcher.Constraint("Horizontal", 3))
sketch18.addConstraint(Sketcher.Constraint("PointOnObject", 1, 2, -2))
sketch18.addConstraint(Sketcher.Constraint("DistanceX", 1, 2, 1, 1, 116.0))
sketch18.addConstraint(Sketcher.Constraint("DistanceY", 0, 2, 0, 1, 10.0))
sketch18.addConstraint(Sketcher.Constraint("DistanceY", 0, 2, -1, 1, 34.076967))
pad5 = body2.newObject("PartDesign::Pad", "Pad004")
pad5.Profile = sketch18
pad5.Length = 10
pad5.Reversed = True
body3 = doc.addObject("PartDesign::Body", "Body002")

# Sketch on XZ plane
sketch19 = body3.newObject("Sketcher::SketchObject", "Sketch018")
sketch19.AttachmentSupport = (doc.getObject("XZ_Plane002"), [""])
sketch19.MapMode = "FlatFace"
sketch19.AttachmentOffset = App.Placement(Vector(0, 0, 34.076967), App.Rotation())
add_polygon(sketch19, [(0, 126), (0, -10), (116, -10), (116, 126), (98, 66), (98, 0), (18, 0), (18, 66)])  # lines 0-7
sketch19.addConstraint(Sketcher.Constraint("Vertical", 0))
sketch19.addConstraint(Sketcher.Constraint("Horizontal", 1))
sketch19.addConstraint(Sketcher.Constraint("Vertical", 2))
sketch19.addConstraint(Sketcher.Constraint("Vertical", 4))
sketch19.addConstraint(Sketcher.Constraint("Horizontal", 5))
sketch19.addConstraint(Sketcher.Constraint("Vertical", 6))
sketch19.addConstraint(Sketcher.Constraint("PointOnObject", 0, 2, -2))
sketch19.addConstraint(Sketcher.Constraint("PointOnObject", 4, 2, -1))
sketch19.addConstraint(Sketcher.Constraint("Horizontal", 3, 2, 6, 2))
sketch19.addConstraint(Sketcher.Constraint("Horizontal", 2, 2, 7, 2))
sketch19.addConstraint(Sketcher.Constraint("Equal", 3, 7))
sketch19.addConstraint(Sketcher.Constraint("DistanceX", 1, 1, 1, 2, 116.0))
sketch19.addConstraint(Sketcher.Constraint("DistanceX", 5, 2, 5, 1, 80.0))
sketch19.addConstraint(Sketcher.Constraint("DistanceY", 0, 2, 0, 1, 136.0))
sketch19.addConstraint(Sketcher.Constraint("DistanceY", 4, 2, 4, 1, 66.0))
sketch19.addConstraint(Sketcher.Constraint("DistanceY", 0, 2, -1, 1, 10.0))
pad6 = body3.newObject("PartDesign::Pad", "Pad005")
pad6.Profile = sketch19
pad6.Length = 22.376967
pad6.Reversed = True
doc.recompute()

body4 = doc.addObject("PartDesign::Body", "Body003")
body4.BaseFeature = body3
boolean = body.newObject("PartDesign::Boolean", "Boolean")
boolean.Type = "Cut"
boolean.addObjects([body4])
doc.recompute()

fillet = body.newObject("PartDesign::Fillet", "Fillet")
fillet.Base = (boolean, edges_at(boolean, [
    (0, -4.075, 146),
    (116, -4.075, 146),
    (2.5, -2.05, 2.5),
    (113.5, -2.05, 2.5),
    (113.5, -2.05, 143.5),
    (2.5, -2.05, 143.5),
    (114.5, -1.05, 1.5),
    (114.5, -1.05, 144.5),
    (1.5, -1.05, 144.5),
    (1.5, -1.05, 1.5),
    (116, -6.85, 0),
    (0, -6.85, 0),
]))
fillet.Radius = 3
doc.recompute()

fillet2 = body.newObject("PartDesign::Fillet", "Fillet001")
fillet2.Base = (fillet, edges_at(fillet, [
    (10.5, -11.7, 0),
    (0, -11.7, 51.901),
    (116, -11.7, 51.901),
    (105.5, -11.7, 0),
    (115.121, -11.7, 0.879),
    (0.879, -11.7, 0.879),
]))
fillet2.Radius = 1
doc.recompute()

fillet3 = body.newObject("PartDesign::Fillet", "Fillet002")
fillet3.Base = (fillet2, edges_at(fillet2, [(98, -13.837, 66)]))
fillet3.Radius = 180
doc.recompute()

fillet4 = body.newObject("PartDesign::Fillet", "Fillet003")
fillet4.Base = (fillet3, edges_at(fillet3, [(18, -13.837, 66)]))
fillet4.Radius = 180
doc.recompute()

fillet5 = body.newObject("PartDesign::Fillet", "Fillet004")
fillet5.Base = (fillet4, edges_at(fillet4, [(18, -17.388, 0), (98, -17.388, 0)]))
fillet5.Radius = 3

# Sketch on an angled plane
sketch20 = body.newObject("Sketcher::SketchObject", "Sketch019")
sketch20.Placement = App.Placement(Vector(0, -23.719372, 2.912373), App.Rotation(Vector(1, 0, 0), Vector(0, 0.121869343, 0.992546152), Vector(0, -0.992546152, 0.121869343), "ZXY"))
sketch20.addGeometry(Part.ArcOfCircle(Part.Circle(Vector(28, 7.065756, 0), Vector(0, 0, 1), 4.05), math.radians(180), math.radians(270)), False)
sketch20.addGeometry(Part.ArcOfCircle(Part.Circle(Vector(28, 7.065756, 0), Vector(0, 0, 1), 4.05), math.radians(-90), math.radians(0)), False)
sketch20.addGeometry(Part.ArcOfCircle(Part.Circle(Vector(28, 7.065756, 0), Vector(0, 0, 1), 4.05), math.radians(0), math.radians(180)), False)
sketch20.addGeometry(Part.ArcOfCircle(Part.Circle(Vector(88, 7.065756, 0), Vector(0, 0, 1), 4.05), math.radians(-90), math.radians(0)), False)
sketch20.addGeometry(Part.ArcOfCircle(Part.Circle(Vector(88, 7.065756, 0), Vector(0, 0, 1), 4.05), math.radians(0), math.radians(270)), False)
sketch20.addConstraint(Sketcher.Constraint("Tangent", 0, 2, 1, 1))
sketch20.addConstraint(Sketcher.Constraint("Tangent", 1, 2, 2, 1))
sketch20.addConstraint(Sketcher.Constraint("Tangent", 2, 2, 0, 1))
sketch20.addConstraint(Sketcher.Constraint("Tangent", 3, 1, 4, 2))
sketch20.addConstraint(Sketcher.Constraint("Coincident", 4, 1, 3, 2))
sketch20.addConstraint(Sketcher.Constraint("Equal", 2, 3))
sketch20.addConstraint(Sketcher.Constraint("Horizontal", 2, 3, 3, 3))
sketch20.addConstraint(Sketcher.Constraint("Horizontal", 4, 3, 1, 2))
sketch20.addConstraint(Sketcher.Constraint("Horizontal", 1, 2, 2, 2))
sketch20.addConstraint(Sketcher.Constraint("Horizontal", 2, 2, 4, 1))
sketch20.addConstraint(Sketcher.Constraint("Vertical", 2, 3, 0, 2))
sketch20.addConstraint(Sketcher.Constraint("Vertical", 4, 3, 3, 1))
sketch20.addConstraint(Sketcher.Constraint("Radius", 0, 4.05))
sketch20.addConstraint(Sketcher.Constraint("DistanceX", -1, 1, 0, 3, 28.0))
sketch20.addConstraint(Sketcher.Constraint("DistanceX", -1, 1, 3, 3, 88.0))
sketch20.addConstraint(Sketcher.Constraint("DistanceY", -1, 1, 0, 3, 7.065756))
pocket14 = body.newObject("PartDesign::Pocket", "Pocket013")
pocket14.Profile = sketch20
pocket14.Length = 1.5
doc.recompute()

boolean2 = body2.newObject("PartDesign::Boolean", "Boolean001")
boolean2.Type = "Cut"
boolean2.addObjects([body3])

doc.recompute()
